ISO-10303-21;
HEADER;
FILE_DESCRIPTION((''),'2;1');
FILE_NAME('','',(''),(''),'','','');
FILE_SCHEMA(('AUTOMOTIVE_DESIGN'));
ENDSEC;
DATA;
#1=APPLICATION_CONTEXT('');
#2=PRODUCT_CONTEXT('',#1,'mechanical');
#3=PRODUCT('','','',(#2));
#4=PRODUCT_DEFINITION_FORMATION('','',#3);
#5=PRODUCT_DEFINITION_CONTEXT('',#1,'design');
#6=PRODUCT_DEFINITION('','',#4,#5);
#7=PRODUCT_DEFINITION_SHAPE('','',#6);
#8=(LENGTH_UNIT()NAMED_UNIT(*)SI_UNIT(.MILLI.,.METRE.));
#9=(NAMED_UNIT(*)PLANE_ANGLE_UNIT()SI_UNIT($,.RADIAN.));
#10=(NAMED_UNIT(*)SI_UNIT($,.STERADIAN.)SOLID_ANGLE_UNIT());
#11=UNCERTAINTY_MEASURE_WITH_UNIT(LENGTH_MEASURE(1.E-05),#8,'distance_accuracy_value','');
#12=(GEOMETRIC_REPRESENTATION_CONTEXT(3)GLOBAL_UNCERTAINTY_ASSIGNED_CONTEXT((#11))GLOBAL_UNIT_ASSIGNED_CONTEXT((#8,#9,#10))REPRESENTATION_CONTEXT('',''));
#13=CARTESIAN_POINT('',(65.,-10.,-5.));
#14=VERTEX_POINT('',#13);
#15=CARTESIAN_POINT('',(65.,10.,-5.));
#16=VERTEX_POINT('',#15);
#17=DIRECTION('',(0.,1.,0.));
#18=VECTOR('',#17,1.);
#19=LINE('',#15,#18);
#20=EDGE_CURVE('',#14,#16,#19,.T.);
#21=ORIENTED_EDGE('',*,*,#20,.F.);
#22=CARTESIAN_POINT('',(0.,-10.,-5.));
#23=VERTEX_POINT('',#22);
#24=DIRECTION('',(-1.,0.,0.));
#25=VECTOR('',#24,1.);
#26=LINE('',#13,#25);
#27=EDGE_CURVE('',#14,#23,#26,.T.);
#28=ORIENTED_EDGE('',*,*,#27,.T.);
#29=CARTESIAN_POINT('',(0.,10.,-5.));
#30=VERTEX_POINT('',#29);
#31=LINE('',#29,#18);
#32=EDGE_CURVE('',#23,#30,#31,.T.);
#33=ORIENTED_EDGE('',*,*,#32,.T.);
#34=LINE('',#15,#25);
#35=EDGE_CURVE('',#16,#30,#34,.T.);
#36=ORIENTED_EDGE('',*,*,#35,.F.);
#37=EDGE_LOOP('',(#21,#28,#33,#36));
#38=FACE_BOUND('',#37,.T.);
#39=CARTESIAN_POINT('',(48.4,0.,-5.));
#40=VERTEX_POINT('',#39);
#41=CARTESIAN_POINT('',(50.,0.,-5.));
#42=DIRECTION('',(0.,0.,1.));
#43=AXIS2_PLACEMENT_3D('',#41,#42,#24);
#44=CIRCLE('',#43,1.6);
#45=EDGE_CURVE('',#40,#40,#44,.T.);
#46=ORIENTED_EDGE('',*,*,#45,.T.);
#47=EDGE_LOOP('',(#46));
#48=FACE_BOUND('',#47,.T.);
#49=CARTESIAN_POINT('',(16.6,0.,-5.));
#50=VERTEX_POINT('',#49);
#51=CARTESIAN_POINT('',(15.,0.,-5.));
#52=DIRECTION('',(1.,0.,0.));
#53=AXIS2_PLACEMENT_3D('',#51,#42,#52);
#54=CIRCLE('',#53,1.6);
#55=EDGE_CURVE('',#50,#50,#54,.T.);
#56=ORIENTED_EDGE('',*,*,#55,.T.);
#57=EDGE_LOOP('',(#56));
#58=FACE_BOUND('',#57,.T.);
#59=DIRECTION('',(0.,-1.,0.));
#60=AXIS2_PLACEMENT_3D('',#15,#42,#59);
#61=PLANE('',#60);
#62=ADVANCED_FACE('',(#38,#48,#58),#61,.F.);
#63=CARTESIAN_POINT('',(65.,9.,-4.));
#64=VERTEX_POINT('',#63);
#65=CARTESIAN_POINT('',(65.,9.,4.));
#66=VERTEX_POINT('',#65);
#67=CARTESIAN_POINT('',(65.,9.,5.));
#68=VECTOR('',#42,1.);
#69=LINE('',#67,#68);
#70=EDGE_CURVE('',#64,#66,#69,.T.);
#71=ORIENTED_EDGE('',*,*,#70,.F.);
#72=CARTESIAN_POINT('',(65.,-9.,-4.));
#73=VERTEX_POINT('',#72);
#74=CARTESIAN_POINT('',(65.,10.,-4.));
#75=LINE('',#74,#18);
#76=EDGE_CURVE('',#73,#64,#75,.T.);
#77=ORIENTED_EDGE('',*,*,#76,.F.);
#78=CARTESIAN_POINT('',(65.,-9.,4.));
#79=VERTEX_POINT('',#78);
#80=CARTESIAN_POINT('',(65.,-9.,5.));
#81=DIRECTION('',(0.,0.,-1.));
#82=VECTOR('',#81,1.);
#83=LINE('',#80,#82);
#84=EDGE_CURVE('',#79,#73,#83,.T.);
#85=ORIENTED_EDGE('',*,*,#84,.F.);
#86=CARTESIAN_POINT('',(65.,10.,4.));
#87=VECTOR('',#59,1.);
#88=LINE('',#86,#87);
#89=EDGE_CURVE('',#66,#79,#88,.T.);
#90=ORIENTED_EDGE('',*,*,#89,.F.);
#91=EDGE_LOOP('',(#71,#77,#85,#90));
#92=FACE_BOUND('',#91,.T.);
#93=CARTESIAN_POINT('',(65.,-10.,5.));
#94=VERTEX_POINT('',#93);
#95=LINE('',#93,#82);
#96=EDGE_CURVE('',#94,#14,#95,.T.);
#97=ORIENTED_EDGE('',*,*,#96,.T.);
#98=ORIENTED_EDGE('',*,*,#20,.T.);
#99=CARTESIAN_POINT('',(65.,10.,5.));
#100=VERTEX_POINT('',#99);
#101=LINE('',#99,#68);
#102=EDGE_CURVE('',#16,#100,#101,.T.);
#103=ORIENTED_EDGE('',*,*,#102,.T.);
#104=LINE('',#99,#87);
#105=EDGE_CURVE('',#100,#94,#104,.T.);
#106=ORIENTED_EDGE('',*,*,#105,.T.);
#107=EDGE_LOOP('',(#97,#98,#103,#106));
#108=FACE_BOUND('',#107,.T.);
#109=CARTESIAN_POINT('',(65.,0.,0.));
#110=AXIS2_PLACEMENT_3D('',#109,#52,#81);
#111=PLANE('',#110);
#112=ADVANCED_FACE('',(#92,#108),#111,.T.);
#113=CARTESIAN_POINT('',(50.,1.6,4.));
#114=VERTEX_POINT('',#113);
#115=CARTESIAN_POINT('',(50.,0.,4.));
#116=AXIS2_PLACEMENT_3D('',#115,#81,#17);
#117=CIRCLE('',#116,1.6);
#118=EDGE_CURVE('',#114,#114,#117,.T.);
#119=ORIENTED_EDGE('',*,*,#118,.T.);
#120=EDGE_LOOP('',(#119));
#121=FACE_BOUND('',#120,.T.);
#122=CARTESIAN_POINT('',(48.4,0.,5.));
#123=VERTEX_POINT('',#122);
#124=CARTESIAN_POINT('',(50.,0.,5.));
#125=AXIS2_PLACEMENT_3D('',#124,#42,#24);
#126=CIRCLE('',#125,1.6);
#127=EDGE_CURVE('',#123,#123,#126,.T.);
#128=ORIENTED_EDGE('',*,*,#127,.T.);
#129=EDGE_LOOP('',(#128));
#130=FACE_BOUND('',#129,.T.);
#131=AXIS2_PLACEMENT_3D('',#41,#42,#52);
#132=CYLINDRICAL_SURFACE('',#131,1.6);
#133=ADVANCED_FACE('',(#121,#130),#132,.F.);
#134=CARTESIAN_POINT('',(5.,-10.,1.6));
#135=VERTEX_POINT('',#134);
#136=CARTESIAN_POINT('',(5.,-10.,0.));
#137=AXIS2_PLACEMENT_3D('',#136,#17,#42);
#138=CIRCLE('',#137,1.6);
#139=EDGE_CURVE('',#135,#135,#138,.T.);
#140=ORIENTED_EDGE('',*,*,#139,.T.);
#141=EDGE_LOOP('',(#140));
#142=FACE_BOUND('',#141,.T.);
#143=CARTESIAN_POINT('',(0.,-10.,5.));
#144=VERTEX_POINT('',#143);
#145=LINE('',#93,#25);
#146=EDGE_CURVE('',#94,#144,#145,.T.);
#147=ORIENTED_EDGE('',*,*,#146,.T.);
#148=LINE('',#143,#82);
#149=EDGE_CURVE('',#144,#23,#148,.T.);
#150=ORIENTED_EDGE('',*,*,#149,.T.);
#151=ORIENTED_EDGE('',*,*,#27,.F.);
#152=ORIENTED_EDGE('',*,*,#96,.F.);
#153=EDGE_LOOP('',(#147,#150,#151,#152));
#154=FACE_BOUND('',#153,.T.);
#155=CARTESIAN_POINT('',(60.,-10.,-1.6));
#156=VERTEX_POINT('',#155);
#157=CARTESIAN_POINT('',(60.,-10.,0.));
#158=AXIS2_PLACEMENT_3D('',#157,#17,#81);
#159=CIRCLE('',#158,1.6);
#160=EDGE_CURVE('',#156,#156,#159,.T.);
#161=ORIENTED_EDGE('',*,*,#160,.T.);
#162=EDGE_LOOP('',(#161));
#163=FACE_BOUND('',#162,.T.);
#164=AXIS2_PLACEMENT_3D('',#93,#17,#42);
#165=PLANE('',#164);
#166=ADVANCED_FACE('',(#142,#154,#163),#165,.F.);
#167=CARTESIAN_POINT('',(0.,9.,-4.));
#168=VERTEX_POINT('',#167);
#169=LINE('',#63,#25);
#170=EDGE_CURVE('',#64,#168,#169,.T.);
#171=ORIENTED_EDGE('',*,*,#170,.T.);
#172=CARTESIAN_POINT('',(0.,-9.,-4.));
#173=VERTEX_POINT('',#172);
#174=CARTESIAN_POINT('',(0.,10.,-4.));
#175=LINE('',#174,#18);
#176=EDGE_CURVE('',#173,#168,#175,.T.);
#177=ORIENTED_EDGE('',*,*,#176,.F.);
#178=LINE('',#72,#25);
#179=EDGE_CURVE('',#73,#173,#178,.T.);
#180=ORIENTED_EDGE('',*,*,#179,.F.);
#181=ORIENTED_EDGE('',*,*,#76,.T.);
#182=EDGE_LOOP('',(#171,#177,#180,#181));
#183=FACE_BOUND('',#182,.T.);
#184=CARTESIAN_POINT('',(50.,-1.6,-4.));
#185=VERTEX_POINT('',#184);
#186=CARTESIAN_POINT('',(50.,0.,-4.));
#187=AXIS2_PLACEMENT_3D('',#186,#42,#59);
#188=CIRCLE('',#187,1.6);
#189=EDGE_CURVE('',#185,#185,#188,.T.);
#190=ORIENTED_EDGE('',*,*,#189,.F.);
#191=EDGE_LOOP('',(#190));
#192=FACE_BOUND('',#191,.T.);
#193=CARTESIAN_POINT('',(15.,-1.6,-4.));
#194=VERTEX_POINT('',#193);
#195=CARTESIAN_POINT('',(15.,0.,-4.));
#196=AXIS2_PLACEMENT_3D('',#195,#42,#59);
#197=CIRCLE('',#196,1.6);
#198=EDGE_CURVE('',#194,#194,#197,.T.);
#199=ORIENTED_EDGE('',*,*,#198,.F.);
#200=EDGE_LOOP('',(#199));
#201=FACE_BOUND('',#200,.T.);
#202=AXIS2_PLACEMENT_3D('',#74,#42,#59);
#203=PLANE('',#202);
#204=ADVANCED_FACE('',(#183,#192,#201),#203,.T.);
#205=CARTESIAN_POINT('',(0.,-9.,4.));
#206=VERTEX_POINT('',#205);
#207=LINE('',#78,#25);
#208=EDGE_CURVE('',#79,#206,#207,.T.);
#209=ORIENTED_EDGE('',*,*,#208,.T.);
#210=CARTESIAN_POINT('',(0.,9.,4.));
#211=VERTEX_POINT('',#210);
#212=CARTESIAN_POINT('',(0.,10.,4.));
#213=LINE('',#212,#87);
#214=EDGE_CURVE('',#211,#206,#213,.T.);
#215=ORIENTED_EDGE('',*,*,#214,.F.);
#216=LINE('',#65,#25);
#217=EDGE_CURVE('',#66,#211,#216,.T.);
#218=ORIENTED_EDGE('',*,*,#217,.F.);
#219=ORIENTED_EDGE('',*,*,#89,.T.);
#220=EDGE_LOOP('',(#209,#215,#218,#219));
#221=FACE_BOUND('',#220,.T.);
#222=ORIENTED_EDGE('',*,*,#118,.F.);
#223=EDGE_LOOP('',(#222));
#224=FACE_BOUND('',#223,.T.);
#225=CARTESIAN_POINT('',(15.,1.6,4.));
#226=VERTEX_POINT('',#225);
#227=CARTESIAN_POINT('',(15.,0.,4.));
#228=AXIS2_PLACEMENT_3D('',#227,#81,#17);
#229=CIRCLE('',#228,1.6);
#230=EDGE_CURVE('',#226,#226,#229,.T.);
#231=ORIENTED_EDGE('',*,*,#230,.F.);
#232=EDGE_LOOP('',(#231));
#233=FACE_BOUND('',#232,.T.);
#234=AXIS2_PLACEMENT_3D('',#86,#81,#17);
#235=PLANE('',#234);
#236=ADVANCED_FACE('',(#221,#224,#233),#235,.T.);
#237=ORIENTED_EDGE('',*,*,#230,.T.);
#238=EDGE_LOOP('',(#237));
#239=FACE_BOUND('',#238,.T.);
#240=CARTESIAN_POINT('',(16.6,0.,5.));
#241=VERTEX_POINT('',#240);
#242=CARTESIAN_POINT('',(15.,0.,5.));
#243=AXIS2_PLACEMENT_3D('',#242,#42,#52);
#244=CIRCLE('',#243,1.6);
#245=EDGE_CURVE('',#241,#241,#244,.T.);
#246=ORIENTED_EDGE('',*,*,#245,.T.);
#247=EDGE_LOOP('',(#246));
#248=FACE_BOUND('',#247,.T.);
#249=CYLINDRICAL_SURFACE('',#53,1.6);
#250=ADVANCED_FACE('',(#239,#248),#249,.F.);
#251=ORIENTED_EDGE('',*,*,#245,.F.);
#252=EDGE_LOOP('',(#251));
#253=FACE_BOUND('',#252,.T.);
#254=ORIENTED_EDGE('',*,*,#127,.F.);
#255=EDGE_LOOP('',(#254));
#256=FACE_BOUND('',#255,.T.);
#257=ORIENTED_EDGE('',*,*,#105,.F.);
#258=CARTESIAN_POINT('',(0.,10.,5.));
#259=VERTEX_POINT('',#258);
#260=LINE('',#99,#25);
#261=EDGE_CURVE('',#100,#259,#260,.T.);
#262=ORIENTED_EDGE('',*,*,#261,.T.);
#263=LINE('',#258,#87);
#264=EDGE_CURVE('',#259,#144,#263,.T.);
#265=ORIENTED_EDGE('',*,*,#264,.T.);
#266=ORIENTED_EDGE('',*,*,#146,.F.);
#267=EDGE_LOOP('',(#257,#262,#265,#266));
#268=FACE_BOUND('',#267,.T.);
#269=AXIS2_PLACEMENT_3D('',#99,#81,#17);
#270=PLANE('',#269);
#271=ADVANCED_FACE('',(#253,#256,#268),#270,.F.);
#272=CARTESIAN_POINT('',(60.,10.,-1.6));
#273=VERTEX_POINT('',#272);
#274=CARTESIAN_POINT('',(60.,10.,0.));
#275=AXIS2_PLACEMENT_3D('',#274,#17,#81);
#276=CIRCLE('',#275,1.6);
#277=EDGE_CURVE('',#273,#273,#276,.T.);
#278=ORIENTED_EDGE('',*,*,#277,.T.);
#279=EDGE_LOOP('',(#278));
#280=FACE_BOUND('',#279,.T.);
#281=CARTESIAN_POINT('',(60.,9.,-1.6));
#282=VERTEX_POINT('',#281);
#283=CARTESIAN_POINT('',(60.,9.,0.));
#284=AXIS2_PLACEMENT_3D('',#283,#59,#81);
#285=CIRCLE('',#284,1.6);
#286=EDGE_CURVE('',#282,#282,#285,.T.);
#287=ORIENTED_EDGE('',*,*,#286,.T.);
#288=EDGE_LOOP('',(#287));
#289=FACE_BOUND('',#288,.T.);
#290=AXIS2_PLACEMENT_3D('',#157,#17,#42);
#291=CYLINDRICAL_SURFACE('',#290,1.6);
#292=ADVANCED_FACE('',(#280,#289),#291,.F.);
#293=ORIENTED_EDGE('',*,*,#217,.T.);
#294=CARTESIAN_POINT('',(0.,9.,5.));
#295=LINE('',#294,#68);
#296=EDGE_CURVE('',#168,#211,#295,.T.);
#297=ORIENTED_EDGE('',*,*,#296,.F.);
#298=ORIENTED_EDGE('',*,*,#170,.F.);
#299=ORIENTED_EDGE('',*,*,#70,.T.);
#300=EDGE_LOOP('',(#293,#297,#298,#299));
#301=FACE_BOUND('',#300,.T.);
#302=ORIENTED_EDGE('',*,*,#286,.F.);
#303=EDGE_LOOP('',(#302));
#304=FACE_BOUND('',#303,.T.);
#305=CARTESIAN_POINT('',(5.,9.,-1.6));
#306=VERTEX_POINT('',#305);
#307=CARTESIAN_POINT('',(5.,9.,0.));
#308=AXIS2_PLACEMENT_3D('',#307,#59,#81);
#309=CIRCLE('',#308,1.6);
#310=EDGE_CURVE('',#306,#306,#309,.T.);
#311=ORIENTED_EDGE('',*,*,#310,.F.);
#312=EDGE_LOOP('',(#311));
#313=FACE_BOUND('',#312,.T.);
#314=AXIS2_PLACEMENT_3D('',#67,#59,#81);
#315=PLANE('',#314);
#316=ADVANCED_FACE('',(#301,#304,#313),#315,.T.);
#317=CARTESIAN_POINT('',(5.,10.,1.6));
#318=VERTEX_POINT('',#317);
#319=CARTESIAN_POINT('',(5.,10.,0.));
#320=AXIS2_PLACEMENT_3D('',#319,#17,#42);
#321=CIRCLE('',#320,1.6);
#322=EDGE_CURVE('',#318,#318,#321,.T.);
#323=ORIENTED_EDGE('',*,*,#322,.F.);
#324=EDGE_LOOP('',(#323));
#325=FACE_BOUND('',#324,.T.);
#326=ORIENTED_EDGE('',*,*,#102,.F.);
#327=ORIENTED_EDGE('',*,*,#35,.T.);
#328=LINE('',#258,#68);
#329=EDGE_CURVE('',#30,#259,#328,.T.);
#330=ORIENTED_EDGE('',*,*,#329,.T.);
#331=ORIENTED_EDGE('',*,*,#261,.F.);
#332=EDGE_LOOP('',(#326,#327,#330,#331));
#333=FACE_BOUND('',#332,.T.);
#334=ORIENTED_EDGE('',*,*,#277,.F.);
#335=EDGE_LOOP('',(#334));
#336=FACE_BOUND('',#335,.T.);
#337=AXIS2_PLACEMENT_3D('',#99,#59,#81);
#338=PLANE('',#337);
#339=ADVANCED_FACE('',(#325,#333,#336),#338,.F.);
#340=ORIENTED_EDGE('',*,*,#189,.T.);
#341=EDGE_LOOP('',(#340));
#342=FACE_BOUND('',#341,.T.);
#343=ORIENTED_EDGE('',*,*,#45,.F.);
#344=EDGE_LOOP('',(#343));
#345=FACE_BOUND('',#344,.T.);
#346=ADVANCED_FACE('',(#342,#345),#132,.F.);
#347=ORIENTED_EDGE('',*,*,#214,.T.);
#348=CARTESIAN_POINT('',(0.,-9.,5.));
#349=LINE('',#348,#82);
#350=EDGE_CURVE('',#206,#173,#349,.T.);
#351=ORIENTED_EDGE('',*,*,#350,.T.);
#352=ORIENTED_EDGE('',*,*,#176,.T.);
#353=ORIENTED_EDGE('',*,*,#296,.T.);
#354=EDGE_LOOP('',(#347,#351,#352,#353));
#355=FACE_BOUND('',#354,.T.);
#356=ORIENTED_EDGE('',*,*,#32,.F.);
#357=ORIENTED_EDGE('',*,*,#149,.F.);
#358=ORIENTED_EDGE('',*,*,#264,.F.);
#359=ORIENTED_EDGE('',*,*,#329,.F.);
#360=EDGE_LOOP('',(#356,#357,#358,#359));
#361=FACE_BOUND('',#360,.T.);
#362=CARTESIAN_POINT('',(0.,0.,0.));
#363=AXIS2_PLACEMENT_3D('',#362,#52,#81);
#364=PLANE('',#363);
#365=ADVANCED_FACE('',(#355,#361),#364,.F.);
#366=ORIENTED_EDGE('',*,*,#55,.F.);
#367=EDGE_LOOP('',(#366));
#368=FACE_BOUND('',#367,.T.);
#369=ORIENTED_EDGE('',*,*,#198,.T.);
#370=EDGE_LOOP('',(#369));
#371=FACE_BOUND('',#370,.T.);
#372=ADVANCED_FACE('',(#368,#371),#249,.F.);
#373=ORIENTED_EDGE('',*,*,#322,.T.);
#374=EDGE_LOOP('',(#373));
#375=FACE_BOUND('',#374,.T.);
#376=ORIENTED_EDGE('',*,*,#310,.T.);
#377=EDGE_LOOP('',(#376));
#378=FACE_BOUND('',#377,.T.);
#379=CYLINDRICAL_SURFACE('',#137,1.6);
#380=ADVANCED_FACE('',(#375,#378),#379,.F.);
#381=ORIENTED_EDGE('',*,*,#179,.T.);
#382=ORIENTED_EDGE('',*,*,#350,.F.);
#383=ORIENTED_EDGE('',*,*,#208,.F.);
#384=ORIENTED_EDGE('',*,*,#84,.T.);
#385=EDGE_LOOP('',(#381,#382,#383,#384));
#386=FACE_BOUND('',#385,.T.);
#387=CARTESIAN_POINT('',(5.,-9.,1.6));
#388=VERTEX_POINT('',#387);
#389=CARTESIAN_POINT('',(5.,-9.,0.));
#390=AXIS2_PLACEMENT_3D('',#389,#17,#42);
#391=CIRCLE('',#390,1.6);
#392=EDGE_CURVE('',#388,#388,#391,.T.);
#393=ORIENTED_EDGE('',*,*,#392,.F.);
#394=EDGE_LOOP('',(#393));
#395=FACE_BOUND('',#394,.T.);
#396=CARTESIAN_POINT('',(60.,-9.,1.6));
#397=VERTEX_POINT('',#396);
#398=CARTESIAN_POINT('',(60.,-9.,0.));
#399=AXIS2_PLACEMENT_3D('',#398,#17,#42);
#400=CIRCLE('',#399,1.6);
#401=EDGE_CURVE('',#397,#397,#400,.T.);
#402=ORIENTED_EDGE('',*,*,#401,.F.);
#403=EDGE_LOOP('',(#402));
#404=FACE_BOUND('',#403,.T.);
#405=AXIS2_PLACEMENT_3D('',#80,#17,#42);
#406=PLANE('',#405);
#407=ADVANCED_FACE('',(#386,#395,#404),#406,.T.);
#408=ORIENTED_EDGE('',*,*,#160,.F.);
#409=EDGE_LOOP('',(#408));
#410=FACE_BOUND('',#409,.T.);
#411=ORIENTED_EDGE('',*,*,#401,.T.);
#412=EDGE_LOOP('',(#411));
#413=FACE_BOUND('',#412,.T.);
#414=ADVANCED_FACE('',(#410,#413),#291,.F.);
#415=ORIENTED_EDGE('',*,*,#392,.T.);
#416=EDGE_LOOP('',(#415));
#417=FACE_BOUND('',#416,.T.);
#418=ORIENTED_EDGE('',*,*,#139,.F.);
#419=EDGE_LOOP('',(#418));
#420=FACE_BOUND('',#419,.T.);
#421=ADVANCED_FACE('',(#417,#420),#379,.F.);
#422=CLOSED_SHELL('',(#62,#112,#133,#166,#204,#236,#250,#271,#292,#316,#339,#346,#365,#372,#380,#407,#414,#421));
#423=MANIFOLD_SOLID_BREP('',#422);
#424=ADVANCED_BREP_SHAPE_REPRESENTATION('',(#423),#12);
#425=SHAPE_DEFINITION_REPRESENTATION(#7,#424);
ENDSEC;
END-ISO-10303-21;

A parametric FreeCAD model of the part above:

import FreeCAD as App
import Part
import Sketcher
from FreeCAD import Vector
Q = App.Units.Quantity

doc = App.newDocument("Part")
body = doc.addObject("PartDesign::Body", "Body")

sketch1 = body.newObject("Sketcher::SketchObject", "Sketch")
sketch1.AttachmentSupport = (doc.getObject("YZ_Plane"), [""])
sketch1.MapMode = "FlatFace"
sketch1.addGeometry([
    Part.LineSegment(Vector(10, 5, 0), Vector(-10, 5, 0)),
    Part.LineSegment(Vector(-10, 5, 0), Vector(-10, -5, 0)),
    Part.LineSegment(Vector(-10, -5, 0), Vector(10, -5, 0)),
    Part.LineSegment(Vector(10, -5, 0), Vector(10, 5, 0)),
    Part.LineSegment(Vector(-9, -4, 0), Vector(-9, 4, 0)),
    Part.LineSegment(Vector(-9, 4, 0), Vector(9, 4, 0)),
    Part.LineSegment(Vector(9, 4, 0), Vector(9, -4, 0)),
    Part.LineSegment(Vector(9, -4, 0), Vector(-9, -4, 0)),
], False)
sketch1.addConstraint([
    Sketcher.Constraint("Coincident", 0, 2, 1, 1),
    Sketcher.Constraint("Coincident", 1, 2, 2, 1),
    Sketcher.Constraint("Coincident", 2, 2, 3, 1),
    Sketcher.Constraint("Coincident", 3, 2, 0, 1),
    Sketcher.Constraint("Coincident", 4, 2, 5, 1),
    Sketcher.Constraint("Coincident", 5, 2, 6, 1),
    Sketcher.Constraint("Coincident", 6, 2, 7, 1),
    Sketcher.Constraint("Coincident", 7, 2, 4, 1),
    Sketcher.Constraint("Horizontal", 0),
    Sketcher.Constraint("Vertical", 1),
    Sketcher.Constraint("Horizontal", 2),
    Sketcher.Constraint("Vertical", 3),
    Sketcher.Constraint("Vertical", 4),
    Sketcher.Constraint("Horizontal", 5),
    Sketcher.Constraint("Vertical", 6),
    Sketcher.Constraint("Horizontal", 7),
    Sketcher.Constraint("Symmetric", 0, 2, 2, 2, -1, 1),
    Sketcher.Constraint("Symmetric", 4, 2, 6, 2, -1, 1),
    Sketcher.Constraint("DistanceX", 0, 2, 0, 1, Q("20 mm")),
    Sketcher.Constraint("DistanceX", 5, 1, 5, 2, Q("18 mm")),
    Sketcher.Constraint("DistanceY", 1, 2, 1, 1, Q("10 mm")),
    Sketcher.Constraint("DistanceY", 4, 1, 4, 2, Q("8 mm")),
])
pad1 = body.newObject("PartDesign::Pad", "Pad")
pad1.Profile = sketch1
pad1.Length = 65

sketch2 = body.newObject("Sketcher::SketchObject", "Sketch001")
sketch2.AttachmentSupport = (doc.getObject("XY_Plane"), [""])
sketch2.MapMode = "FlatFace"
sketch2.AttachmentOffset = App.Placement(Vector(0, 0, 5), App.Rotation())
sketch2.addGeometry([
    Part.Circle(Vector(15, 0, 0), Vector(0, 0, 1), 1.6),
    Part.Circle(Vector(50, 0, 0), Vector(0, 0, 1), 1.6),
], False)
sketch2.addConstraint([
    Sketcher.Constraint("Equal", 0, 1),
    Sketcher.Constraint("PointOnObject", 0, 3, -1),
    Sketcher.Constraint("PointOnObject", 1, 3, -1),
    Sketcher.Constraint("Diameter", 0, Q("3.2 mm")),
    Sketcher.Constraint("DistanceX", -1, 1, 0, 3, Q("15 mm")),
    Sketcher.Constraint("DistanceX", -1, 1, 1, 3, Q("50 mm")),
])
pocket1 = body.newObject("PartDesign::Pocket", "Pocket")
pocket1.Profile = sketch2
pocket1.Type = "ThroughAll"

sketch3 = body.newObject("Sketcher::SketchObject", "Sketch002")
sketch3.AttachmentSupport = (doc.getObject("XZ_Plane"), [""])
sketch3.MapMode = "FlatFace"
sketch3.AttachmentOffset = App.Placement(Vector(0, 0, -10), App.Rotation())
sketch3.addGeometry([
    Part.Circle(Vector(5, 0, 0), Vector(0, 0, 1), 1.6),
    Part.Circle(Vector(60, 0, 0), Vector(0, 0, 1), 1.6),
], False)
sketch3.addConstraint([
    Sketcher.Constraint("Equal", 0, 1),
    Sketcher.Constraint("PointOnObject", 0, 3, -1),
    Sketcher.Constraint("PointOnObject", 1, 3, -1),
    Sketcher.Constraint("Diameter", 0, Q("3.2 mm")),
    Sketcher.Constraint("DistanceX", -1, 1, 0, 3, Q("5 mm")),
    Sketcher.Constraint("DistanceX", -1, 1, 1, 3, Q("60 mm")),
])
pocket2 = body.newObject("PartDesign::Pocket", "Pocket001")
pocket2.Profile = sketch3
pocket2.Type = "ThroughAll"
pocket2.Reversed = True

doc.recompute()
